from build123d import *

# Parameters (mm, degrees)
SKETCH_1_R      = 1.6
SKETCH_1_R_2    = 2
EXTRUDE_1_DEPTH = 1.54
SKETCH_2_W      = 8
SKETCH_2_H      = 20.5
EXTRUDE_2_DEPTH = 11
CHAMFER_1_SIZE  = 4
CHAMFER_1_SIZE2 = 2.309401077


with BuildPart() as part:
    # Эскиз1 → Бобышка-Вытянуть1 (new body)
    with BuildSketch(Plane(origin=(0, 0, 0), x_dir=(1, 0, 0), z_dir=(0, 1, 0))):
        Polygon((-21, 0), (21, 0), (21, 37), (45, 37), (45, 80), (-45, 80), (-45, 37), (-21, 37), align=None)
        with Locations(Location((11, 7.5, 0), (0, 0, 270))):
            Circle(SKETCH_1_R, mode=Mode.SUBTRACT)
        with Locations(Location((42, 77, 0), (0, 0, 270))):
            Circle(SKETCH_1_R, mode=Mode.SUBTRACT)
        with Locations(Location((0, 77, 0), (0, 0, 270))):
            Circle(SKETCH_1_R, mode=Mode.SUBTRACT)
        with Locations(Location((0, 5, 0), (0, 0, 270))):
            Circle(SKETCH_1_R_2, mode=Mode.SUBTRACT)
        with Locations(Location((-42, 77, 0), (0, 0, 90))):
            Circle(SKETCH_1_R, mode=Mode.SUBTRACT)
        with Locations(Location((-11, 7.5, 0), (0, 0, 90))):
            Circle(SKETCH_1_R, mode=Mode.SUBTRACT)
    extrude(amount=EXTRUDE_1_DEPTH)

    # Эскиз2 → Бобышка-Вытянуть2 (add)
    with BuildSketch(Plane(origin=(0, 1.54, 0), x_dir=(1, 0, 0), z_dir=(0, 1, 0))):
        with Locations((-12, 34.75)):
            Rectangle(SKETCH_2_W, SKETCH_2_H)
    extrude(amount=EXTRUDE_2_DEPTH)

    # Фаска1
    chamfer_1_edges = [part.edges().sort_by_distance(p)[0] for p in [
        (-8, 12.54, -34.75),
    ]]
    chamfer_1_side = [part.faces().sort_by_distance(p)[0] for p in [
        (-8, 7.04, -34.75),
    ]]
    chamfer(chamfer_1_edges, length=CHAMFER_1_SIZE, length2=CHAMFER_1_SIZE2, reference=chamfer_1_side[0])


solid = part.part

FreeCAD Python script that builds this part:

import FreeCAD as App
import Part
import Sketcher

V = App.Vector
Q = App.Units.Quantity


def edges_at(feature, points):
    """Names of the edges that pass closest to the given points."""
    edges = feature.Shape.Edges
    near = lambda p: min(range(len(edges)), key=lambda i: edges[i].distToShape(Part.Vertex(*p))[0])
    return sorted({f"Edge{near(p) + 1}" for p in points})

doc = App.newDocument("Part")
params = doc.addObject("Spreadsheet::Sheet", "Params")
for row, (alias, value) in enumerate([
    ("sketch1_diameter", "4 mm"),
    ("sketch1_diameter2", "3.2 mm"),
    ("sketch1_width", "42 mm"),
    ("sketch1_width2", "24 mm"),
    ("sketch1_height", "37 mm"),
    ("pad1_length", "1.54 mm"),
    ("sketch2_width", "8 mm"),
    ("sketch2_height", "20.5 mm"),
    ("pad2_length", "11 mm"),
    ("chamfer_size", "4 mm"),
    ("chamfer_size2", "2.309401 mm"),
], start=1):
    params.set(f"A{row}", alias)
    params.set(f"B{row}", "=" + value)
    params.setAlias(f"B{row}", alias)

body = doc.addObject("PartDesign::Body", "Body")

# Sketch on XZ plane
sketch1 = body.newObject("Sketcher::SketchObject", "Sketch")
sketch1.AttachmentSupport = (doc.getObject("XZ_Plane"), [""])
sketch1.MapMode = "FlatFace"
sketch1.addGeometry([
    Part.LineSegment(V(-21, 0, 0), V(21, 0, 0)),  # 0
    Part.LineSegment(V(21, 0, 0), V(21, -37, 0)),  # 1
    Part.LineSegment(V(21, -37, 0), V(45, -37, 0)),  # 2
    Part.LineSegment(V(45, -37, 0), V(45, -80, 0)),  # 3
    Part.LineSegment(V(45, -80, 0), V(-45, -80, 0)),  # 4
    Part.LineSegment(V(-45, -80, 0), V(-45, -37, 0)),  # 5
    Part.LineSegment(V(-45, -37, 0), V(-21, -37, 0)),  # 6
    Part.LineSegment(V(-21, -37, 0), V(-21, 0, 0)),  # 7
    Part.Circle(V(-11, -7.5, 0), V(0, 0, 1), 1.6),  # 8
    Part.Circle(V(0, -5, 0), V(0, 0, 1), 2),  # 9
    Part.Circle(V(11, -7.5, 0), V(0, 0, 1), 1.6),  # 10
    Part.Circle(V(-42, -77, 0), V(0, 0, 1), 1.6),  # 11
    Part.Circle(V(0, -77, 0), V(0, 0, 1), 1.6),  # 12
    Part.Circle(V(42, -77, 0), V(0, 0, 1), 1.6),  # 13
], False)
sketch1.addConstraint([
    Sketcher.Constraint("Coincident", 0, 2, 1, 1),
    Sketcher.Constraint("Coincident", 1, 2, 2, 1),
    Sketcher.Constraint("Coincident", 2, 2, 3, 1),
    Sketcher.Constraint("Coincident", 3, 2, 4, 1),
    Sketcher.Constraint("Coincident", 4, 2, 5, 1),
    Sketcher.Constraint("Coincident", 5, 2, 6, 1),
    Sketcher.Constraint("Coincident", 6, 2, 7, 1),
    Sketcher.Constraint("Coincident", 7, 2, 0, 1),
    Sketcher.Constraint("Horizontal", 0),
    Sketcher.Constraint("Vertical", 1),
    Sketcher.Constraint("Horizontal", 2),
    Sketcher.Constraint("Vertical", 3),
    Sketcher.Constraint("Horizontal", 4),
    Sketcher.Constraint("Vertical", 5),
    Sketcher.Constraint("Horizontal", 6),
    Sketcher.Constraint("Vertical", 7),
    Sketcher.Constraint("Equal", 8, 10),
    Sketcher.Constraint("Equal", 10, 11),
    Sketcher.Constraint("Equal", 11, 12),
    Sketcher.Constraint("Equal", 12, 13),
    Sketcher.Constraint("Symmetric", 0, 2, 7, 2, -1, 1),
    Sketcher.Constraint("Symmetric", 8, 3, 10, 3, -2),
    Sketcher.Constraint("Symmetric", 11, 3, 13, 3, -2),
    Sketcher.Constraint("Symmetric", 2, 2, 5, 2, -2),
    Sketcher.Constraint("PointOnObject", 9, 3, -2),
    Sketcher.Constraint("PointOnObject", 12, 3, -2),
    Sketcher.Constraint("Horizontal", 11, 3, 12, 3),
    Sketcher.Constraint("Diameter", 9, Q("4 mm")),
    Sketcher.Constraint("Diameter", 8, Q("3.2 mm")),
    Sketcher.Constraint("DistanceX", 0, 1, 0, 2, Q("42 mm")),
    Sketcher.Constraint("DistanceX", 2, 1, 2, 2, Q("24 mm")),
    Sketcher.Constraint("DistanceY", 1, 2, 1, 1, Q("37 mm")),
    Sketcher.Constraint("DistanceY", 3, 2, 3, 1, Q("43 mm")),
    Sketcher.Constraint("DistanceX", 8, 3, -1, 1, Q("11 mm")),
    Sketcher.Constraint("DistanceY", 9, 3, -1, 1, Q("5 mm")),
    Sketcher.Constraint("DistanceX", 11, 3, -1, 1, Q("42 mm")),
    Sketcher.Constraint("DistanceY", 11, 3, -1, 1, Q("77 mm")),
    Sketcher.Constraint("DistanceY", 8, 3, -1, 1, Q("7.5 mm")),
])
sketch1.setExpression("Constraints[27]", "Params.sketch1_diameter")
sketch1.setExpression("Constraints[28]", "Params.sketch1_diameter2")
sketch1.setExpression("Constraints[29]", "Params.sketch1_width")
sketch1.setExpression("Constraints[30]", "Params.sketch1_width2")
sketch1.setExpression("Constraints[31]", "Params.sketch1_height")
pad1 = body.newObject("PartDesign::Pad", "Pad")
pad1.Profile = sketch1
pad1.setExpression("Length", "Params.pad1_length")
pad1.Reversed = True

# Sketch on XZ plane
sketch2 = body.newObject("Sketcher::SketchObject", "Sketch001")
sketch2.AttachmentSupport = (doc.getObject("XZ_Plane"), [""])
sketch2.MapMode = "FlatFace"
sketch2.AttachmentOffset = App.Placement(V(0, 0, -1.54), App.Rotation())
sketch2.addGeometry([
    Part.LineSegment(V(-16, -45, 0), V(-16, -24.5, 0)),
    Part.LineSegment(V(-16, -24.5, 0), V(-8, -24.5, 0)),
    Part.LineSegment(V(-8, -24.5, 0), V(-8, -45, 0)),
    Part.LineSegment(V(-8, -45, 0), V(-16, -45, 0)),
], False)
sketch2.addConstraint([
    Sketcher.Constraint("Coincident", 0, 2, 1, 1),
    Sketcher.Constraint("Coincident", 1, 2, 2, 1),
    Sketcher.Constraint("Coincident", 2, 2, 3, 1),
    Sketcher.Constraint("Coincident", 3, 2, 0, 1),
    Sketcher.Constraint("Vertical", 0),
    Sketcher.Constraint("Horizontal", 1),
    Sketcher.Constraint("Vertical", 2),
    Sketcher.Constraint("Horizontal", 3),
    Sketcher.Constraint("DistanceX", 1, 1, 1, 2, Q("8 mm")),
    Sketcher.Constraint("DistanceY", 0, 1, 0, 2, Q("20.5 mm")),
    Sketcher.Constraint("DistanceX", 0, 2, -1, 1, Q("16 mm")),
    Sketcher.Constraint("DistanceY", 2, 2, -1, 1, Q("45 mm")),
])
sketch2.setExpression("Constraints[8]", "Params.sketch2_width")
sketch2.setExpression("Constraints[9]", "Params.sketch2_height")
pad2 = body.newObject("PartDesign::Pad", "Pad001")
pad2.Profile = sketch2
pad2.setExpression("Length", "Params.pad2_length")
pad2.Reversed = True
doc.recompute()

chamfer = body.newObject("PartDesign::Chamfer", "Chamfer")
chamfer.Base = (pad2, edges_at(pad2, [(-8, 12.54, -34.75)]))
chamfer.ChamferType = "Two distances"
chamfer.setExpression("Size", "Params.chamfer_size")
chamfer.setExpression("Size2", "Params.chamfer_size2")

doc.recompute()
